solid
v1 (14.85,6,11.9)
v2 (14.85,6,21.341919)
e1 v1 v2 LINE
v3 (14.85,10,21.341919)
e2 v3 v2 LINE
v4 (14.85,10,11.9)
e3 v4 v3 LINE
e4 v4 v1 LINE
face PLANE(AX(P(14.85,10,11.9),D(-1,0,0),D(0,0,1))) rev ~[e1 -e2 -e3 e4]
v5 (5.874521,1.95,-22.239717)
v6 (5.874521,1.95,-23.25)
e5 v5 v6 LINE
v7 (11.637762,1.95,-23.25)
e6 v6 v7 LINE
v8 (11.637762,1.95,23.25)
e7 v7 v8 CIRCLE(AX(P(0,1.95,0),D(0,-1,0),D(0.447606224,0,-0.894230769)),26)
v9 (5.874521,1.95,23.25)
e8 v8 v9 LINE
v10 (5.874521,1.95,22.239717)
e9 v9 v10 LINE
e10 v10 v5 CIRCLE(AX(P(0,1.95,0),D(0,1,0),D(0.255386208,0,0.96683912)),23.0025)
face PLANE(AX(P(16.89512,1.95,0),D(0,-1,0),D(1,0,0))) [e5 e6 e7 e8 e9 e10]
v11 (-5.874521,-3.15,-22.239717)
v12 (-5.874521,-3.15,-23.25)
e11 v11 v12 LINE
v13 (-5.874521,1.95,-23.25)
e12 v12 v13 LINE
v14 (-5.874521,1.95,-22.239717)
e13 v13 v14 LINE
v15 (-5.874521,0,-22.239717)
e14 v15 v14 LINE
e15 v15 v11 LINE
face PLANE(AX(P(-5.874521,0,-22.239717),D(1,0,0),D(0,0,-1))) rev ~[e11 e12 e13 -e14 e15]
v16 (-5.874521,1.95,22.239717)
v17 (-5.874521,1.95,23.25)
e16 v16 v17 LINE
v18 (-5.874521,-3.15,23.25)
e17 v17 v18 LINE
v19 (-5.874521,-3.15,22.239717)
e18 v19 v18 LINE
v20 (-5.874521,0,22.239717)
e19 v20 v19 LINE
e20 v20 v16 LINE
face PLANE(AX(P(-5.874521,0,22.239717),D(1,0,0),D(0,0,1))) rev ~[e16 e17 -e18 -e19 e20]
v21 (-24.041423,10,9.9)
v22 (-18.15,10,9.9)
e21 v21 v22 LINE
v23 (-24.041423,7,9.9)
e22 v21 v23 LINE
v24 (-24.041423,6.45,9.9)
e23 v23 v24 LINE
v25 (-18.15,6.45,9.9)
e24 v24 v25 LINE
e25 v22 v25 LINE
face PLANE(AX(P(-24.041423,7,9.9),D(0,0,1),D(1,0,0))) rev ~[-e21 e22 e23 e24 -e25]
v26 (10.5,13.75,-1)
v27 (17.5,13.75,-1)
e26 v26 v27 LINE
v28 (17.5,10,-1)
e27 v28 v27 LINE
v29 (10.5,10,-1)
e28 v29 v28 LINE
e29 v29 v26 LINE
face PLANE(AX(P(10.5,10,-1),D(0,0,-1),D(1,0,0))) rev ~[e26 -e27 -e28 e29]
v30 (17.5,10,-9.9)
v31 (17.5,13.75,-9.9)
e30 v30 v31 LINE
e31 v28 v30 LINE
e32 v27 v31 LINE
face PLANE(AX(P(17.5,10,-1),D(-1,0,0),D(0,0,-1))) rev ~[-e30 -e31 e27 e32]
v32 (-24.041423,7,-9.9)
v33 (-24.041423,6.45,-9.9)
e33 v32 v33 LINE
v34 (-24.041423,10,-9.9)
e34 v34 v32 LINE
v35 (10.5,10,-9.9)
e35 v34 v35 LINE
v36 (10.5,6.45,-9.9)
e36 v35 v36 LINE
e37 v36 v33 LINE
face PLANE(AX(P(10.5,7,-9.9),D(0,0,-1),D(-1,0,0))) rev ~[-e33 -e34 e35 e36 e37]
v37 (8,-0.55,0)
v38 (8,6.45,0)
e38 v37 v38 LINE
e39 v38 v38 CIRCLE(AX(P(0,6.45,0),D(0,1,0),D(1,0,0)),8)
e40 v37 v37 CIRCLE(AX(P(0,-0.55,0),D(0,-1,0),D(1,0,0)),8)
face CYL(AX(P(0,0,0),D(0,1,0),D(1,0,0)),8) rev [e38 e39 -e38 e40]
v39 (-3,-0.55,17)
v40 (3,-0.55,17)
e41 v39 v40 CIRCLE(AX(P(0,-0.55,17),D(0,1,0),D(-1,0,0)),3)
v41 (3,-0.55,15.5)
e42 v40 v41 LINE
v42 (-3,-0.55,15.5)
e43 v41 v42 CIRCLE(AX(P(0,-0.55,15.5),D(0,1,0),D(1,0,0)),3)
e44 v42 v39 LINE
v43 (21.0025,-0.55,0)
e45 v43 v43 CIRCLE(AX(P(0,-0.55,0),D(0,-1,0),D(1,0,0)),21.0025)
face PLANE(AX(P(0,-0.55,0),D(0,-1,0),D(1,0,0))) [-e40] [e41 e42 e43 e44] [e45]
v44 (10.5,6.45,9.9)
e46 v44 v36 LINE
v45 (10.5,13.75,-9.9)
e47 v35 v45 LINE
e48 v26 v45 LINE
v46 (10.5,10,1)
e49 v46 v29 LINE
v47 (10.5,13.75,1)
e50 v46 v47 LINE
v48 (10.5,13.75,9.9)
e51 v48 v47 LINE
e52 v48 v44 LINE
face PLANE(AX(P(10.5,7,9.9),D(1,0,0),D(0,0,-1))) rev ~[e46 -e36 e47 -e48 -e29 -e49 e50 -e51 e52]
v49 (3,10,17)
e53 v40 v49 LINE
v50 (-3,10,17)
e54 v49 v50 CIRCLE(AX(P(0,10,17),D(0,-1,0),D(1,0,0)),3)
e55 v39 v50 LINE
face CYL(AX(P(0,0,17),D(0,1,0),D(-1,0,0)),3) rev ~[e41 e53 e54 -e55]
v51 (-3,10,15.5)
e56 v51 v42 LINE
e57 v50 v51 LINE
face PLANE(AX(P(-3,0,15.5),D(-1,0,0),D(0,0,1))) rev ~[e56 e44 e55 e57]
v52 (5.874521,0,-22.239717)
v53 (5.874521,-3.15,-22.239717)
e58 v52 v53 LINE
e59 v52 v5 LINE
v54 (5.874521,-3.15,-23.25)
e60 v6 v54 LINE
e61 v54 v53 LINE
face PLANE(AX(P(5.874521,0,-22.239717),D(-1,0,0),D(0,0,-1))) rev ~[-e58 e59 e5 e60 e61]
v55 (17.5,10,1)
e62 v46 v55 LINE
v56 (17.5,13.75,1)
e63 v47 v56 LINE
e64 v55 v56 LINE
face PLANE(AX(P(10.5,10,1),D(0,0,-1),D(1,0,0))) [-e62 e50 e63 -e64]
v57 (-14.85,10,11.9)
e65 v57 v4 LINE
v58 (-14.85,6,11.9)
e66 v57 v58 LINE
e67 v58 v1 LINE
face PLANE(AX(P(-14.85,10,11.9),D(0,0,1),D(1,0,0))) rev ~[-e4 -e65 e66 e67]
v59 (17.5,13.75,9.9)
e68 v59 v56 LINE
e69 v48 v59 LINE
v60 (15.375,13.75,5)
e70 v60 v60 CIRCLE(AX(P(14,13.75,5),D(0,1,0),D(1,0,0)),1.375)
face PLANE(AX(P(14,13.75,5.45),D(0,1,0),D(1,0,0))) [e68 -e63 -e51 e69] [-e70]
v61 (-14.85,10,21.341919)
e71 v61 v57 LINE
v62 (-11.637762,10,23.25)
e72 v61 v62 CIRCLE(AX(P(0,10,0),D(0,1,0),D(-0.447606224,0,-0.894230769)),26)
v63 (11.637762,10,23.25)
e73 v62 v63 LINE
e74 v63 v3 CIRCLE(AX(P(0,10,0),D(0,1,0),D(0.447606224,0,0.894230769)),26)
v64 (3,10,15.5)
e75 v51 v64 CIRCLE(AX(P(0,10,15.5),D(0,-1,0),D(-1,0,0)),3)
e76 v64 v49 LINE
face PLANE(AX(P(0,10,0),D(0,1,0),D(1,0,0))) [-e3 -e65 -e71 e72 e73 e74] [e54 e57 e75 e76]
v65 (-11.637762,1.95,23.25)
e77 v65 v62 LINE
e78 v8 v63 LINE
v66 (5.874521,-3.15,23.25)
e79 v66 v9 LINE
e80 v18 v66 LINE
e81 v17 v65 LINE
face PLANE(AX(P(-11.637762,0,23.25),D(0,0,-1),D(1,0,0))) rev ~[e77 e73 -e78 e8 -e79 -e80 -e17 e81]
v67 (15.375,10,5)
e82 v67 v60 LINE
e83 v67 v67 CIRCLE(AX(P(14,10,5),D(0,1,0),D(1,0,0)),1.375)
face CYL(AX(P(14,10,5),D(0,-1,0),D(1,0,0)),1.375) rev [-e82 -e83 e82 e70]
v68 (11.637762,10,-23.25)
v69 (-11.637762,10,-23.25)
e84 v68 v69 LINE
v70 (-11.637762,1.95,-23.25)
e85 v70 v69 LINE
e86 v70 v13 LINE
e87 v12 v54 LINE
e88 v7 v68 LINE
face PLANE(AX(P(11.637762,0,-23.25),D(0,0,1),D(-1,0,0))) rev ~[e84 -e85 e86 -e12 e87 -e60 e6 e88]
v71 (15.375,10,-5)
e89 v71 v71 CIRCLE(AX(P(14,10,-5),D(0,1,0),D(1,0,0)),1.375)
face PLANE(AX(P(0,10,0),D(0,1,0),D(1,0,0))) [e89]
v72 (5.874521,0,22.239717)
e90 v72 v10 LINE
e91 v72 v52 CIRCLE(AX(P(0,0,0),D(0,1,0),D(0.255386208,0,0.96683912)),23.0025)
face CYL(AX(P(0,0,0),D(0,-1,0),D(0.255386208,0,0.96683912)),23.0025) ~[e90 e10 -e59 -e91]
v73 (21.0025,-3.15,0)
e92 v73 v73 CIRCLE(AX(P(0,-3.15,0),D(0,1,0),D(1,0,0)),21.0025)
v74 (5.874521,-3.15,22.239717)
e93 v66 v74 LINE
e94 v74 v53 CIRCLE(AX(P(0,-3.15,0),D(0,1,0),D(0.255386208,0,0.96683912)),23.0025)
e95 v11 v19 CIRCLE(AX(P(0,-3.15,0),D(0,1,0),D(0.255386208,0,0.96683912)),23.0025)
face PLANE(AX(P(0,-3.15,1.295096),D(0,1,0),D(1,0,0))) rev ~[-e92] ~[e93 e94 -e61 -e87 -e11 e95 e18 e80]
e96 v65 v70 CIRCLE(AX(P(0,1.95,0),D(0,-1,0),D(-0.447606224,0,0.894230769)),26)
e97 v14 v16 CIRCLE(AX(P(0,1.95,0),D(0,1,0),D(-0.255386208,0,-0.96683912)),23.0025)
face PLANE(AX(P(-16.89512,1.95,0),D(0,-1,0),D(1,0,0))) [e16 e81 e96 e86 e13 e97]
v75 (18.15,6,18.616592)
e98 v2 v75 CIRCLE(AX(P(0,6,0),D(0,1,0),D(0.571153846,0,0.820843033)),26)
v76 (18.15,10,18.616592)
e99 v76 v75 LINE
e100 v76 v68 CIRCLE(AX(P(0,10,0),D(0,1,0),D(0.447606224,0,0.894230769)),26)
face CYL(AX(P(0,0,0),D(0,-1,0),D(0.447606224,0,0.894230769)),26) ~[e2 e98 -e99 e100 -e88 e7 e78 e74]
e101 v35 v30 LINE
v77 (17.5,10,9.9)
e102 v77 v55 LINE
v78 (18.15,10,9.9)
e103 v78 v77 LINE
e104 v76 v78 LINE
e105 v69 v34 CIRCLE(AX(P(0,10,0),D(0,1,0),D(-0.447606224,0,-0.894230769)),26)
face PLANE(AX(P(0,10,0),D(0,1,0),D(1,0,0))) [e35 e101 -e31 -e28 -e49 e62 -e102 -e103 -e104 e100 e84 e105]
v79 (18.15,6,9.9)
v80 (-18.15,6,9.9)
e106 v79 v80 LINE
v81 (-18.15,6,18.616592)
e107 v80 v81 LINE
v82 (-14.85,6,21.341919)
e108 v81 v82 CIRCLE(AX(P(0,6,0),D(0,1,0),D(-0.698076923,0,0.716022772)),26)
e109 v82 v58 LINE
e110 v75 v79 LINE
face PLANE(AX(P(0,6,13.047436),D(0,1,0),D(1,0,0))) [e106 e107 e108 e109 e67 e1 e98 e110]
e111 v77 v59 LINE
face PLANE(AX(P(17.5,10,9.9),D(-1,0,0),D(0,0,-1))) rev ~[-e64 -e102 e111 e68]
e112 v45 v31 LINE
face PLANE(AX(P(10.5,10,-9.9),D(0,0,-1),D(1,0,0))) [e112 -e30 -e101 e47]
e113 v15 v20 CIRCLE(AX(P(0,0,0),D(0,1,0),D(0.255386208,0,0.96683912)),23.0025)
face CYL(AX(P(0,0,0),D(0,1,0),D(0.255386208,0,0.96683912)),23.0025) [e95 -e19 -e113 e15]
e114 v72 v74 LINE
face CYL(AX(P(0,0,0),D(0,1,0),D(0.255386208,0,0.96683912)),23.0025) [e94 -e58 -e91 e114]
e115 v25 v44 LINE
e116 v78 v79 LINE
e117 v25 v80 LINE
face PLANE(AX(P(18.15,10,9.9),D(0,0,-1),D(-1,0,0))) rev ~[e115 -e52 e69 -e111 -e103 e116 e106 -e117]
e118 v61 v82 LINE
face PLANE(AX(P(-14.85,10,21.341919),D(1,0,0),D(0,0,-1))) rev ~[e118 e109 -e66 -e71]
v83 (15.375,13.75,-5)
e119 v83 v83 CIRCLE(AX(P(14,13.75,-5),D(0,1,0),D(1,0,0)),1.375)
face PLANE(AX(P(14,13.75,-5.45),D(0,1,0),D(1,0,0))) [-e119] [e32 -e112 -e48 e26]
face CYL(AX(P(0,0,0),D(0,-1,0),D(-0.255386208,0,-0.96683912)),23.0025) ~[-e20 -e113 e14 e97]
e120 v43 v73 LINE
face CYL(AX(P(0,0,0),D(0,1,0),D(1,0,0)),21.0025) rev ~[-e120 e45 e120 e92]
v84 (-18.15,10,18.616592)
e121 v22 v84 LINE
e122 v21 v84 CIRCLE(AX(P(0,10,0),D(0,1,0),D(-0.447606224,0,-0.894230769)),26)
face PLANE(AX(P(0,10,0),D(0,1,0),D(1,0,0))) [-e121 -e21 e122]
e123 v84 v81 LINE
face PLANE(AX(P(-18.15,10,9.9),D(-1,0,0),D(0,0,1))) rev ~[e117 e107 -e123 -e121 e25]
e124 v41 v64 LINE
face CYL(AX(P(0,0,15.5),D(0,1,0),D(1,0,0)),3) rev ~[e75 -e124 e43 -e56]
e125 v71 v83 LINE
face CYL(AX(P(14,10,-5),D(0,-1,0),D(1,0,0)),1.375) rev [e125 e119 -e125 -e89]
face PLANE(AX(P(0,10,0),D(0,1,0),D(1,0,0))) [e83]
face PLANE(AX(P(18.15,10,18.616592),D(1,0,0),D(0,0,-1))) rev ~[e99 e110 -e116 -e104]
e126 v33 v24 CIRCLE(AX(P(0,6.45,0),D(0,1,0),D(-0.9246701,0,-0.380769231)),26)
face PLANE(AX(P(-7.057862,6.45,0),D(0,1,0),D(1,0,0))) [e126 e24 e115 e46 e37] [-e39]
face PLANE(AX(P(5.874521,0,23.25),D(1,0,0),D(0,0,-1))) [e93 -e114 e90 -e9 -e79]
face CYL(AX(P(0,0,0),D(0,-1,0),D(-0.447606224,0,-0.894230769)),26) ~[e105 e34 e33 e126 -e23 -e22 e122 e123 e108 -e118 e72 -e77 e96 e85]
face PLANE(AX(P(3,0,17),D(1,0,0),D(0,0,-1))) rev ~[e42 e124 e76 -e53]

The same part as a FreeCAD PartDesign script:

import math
import FreeCAD as App
import Part
import Sketcher

V = App.Vector

doc = App.newDocument("Part")
params = doc.addObject("Spreadsheet::Sheet", "Params")
for row, (alias, value) in enumerate([
    ("sketch1_diameter", "16 mm"),
    ("sketch1_radius", "26 mm"),
    ("sketch1_radius2", "3 mm"),
    ("sketch1_height", "1.5 mm"),
    ("pad1_length", "10 mm"),
    ("pad2_length", "3.15 mm"),
    ("sketch3_radius", "26 mm"),
    ("sketch3_width", "29.7 mm"),
    ("sketch3_width2", "36.3 mm"),
    ("pocket1_length", "4 mm"),
    ("sketch4_width", "36.5 mm"),
    ("sketch4_height", "19.8 mm"),
    ("pocket2_length", "3 mm"),
    ("sketch5_diameter", "2.75 mm"),
    ("sketch5_width", "7 mm"),
    ("sketch5_height", "8.9 mm"),
    ("pad3_length", "4.3 mm"),
    ("pad4_length", "3.15 mm"),
    ("sketch7_radius", "26 mm"),
    ("pocket3_length", "1.95 mm"),
    ("sketch8_diameter", "16 mm"),
    ("sketch8_radius", "3 mm"),
    ("sketch8_height", "1.5 mm"),
    ("pad5_length", "0.55 mm"),
    ("sketch9_diameter", "16 mm"),
    ("sketch9_radius", "26 mm"),
    ("sketch9_height", "19.8 mm"),
    ("pocket4_length", "0.55 mm"),
    ("sketch10_diameter", "2.75 mm"),
    ("sketch10_width", "7 mm"),
    ("sketch10_height", "8.9 mm"),
    ("pocket5_length", "0.55 mm"),
], start=1):
    params.set(f"A{row}", alias)
    params.set(f"B{row}", "=" + value)
    params.setAlias(f"B{row}", alias)

body = doc.addObject("PartDesign::Body", "Body")

sketch1 = body.newObject("Sketcher::SketchObject", "Sketch")
sketch1.AttachmentSupport = (doc.getObject("XZ_Plane"), [""])
sketch1.MapMode = "FlatFace"
sketch1.addGeometry([
    Part.ArcOfCircle(Part.Circle(V(0, 0, 0), V(0, 0, 1), 26), math.radians(116.590205), math.radians(243.409795)),
    Part.LineSegment(V(-11.637762, 23.25, 0), V(11.637762, 23.25, 0)),
    Part.ArcOfCircle(Part.Circle(V(0, 0, 0), V(0, 0, 1), 26), math.radians(-63.409795), math.radians(63.409795)),
    Part.LineSegment(V(11.637762, -23.25, 0), V(-11.637762, -23.25, 0)),
    Part.LineSegment(V(-3, 17, 0), V(-3, 15.5, 0)),
    Part.ArcOfCircle(Part.Circle(V(0, 15.5, 0), V(0, 0, 1), 3), math.radians(180), math.radians(360)),
    Part.LineSegment(V(3, 15.5, 0), V(3, 17, 0)),
    Part.ArcOfCircle(Part.Circle(V(0, 17, 0), V(0, 0, 1), 3), math.radians(0), math.radians(180)),
    Part.Circle(V(0, 0, 0), V(0, 0, 1), 8),
], False)
sketch1.addConstraint([
    Sketcher.Constraint("Coincident", 0, 1, 1, 1),
    Sketcher.Constraint("Coincident", 1, 2, 2, 2),
    Sketcher.Constraint("Coincident", 2, 1, 3, 1),
    Sketcher.Constraint("Coincident", 3, 2, 0, 2),
    Sketcher.Constraint("Tangent", 4, 2, 5, 1),
    Sketcher.Constraint("Tangent", 5, 2, 6, 1),
    Sketcher.Constraint("Tangent", 6, 2, 7, 1),
    Sketcher.Constraint("Tangent", 7, 2, 4, 1),
    Sketcher.Constraint("Horizontal", 1),
    Sketcher.Constraint("Horizontal", 3),
    Sketcher.Constraint("Vertical", 4),
    Sketcher.Constraint("Vertical", 6),
    Sketcher.Constraint("Coincident", 0, 3, -1, 1),
    Sketcher.Constraint("Coincident", 2, 3, -1, 1),
    Sketcher.Constraint("Coincident", 8, 3, -1, 1),
    Sketcher.Constraint("Equal", 0, 2),
    Sketcher.Constraint("PointOnObject", 5, 3, -2),
    Sketcher.Constraint("Vertical", 1, 2, 2, 1),
    Sketcher.Constraint("Diameter", 8, 16.0),
    Sketcher.Constraint("Radius", 0, 26.0),
    Sketcher.Constraint("Radius", 5, 3.0),
    Sketcher.Constraint("DistanceY", 4, 2, 4, 1, 1.5),
    Sketcher.Constraint("DistanceY", -1, 1, 7, 3, 17.0),
    Sketcher.Constraint("DistanceY", -1, 1, 0, 1, 23.25),
])
sketch1.setExpression("Constraints[18]", "Params.sketch1_diameter")
sketch1.setExpression("Constraints[19]", "Params.sketch1_radius")
sketch1.setExpression("Constraints[20]", "Params.sketch1_radius2")
sketch1.setExpression("Constraints[21]", "Params.sketch1_height")
pad1 = body.newObject("PartDesign::Pad", "Pad")
pad1.Profile = sketch1
pad1.setExpression("Length", "Params.pad1_length")
pad1.Reversed = True

sketch2 = body.newObject("Sketcher::SketchObject", "Sketch001")
sketch2.AttachmentSupport = (doc.getObject("XZ_Plane"), [""])
sketch2.MapMode = "FlatFace"
sketch2.addGeometry([
    Part.LineSegment(V(-5.874521, 22.239717, 0), V(-5.874521, 23.25, 0)),
    Part.LineSegment(V(-5.874521, 23.25, 0), V(5.874521, 23.25, 0)),
    Part.LineSegment(V(5.874521, 23.25, 0), V(5.874521, 22.239717, 0)),
    Part.ArcOfCircle(Part.Circle(V(0, 0, 0), V(0, 0, 1), 23.0025), math.radians(104.796471), math.radians(435.203529)),
    Part.Circle(V(0, 0, 0), V(0, 0, 1), 21.0025),
], False)
sketch2.addConstraint([
    Sketcher.Constraint("Coincident", 0, 2, 1, 1),
    Sketcher.Constraint("Coincident", 1, 2, 2, 1),
    Sketcher.Constraint("Coincident", 2, 2, 3, 2),
    Sketcher.Constraint("Coincident", 3, 1, 0, 1),
    Sketcher.Constraint("Vertical", 0),
    Sketcher.Constraint("Horizontal", 1),
    Sketcher.Constraint("Vertical", 2),
    Sketcher.Constraint("Coincident", 3, 3, -1, 1),
    Sketcher.Constraint("Coincident", 4, 3, -1, 1),
    Sketcher.Constraint("Horizontal", 2, 2, 3, 1),
    Sketcher.Constraint("Diameter", 4, 42.005),
    Sketcher.Constraint("Radius", 3, 23.0025),
    Sketcher.Constraint("DistanceY", -1, 1, 0, 2, 23.25),
    Sketcher.Constraint("DistanceX", 1, 1, 1, 2, 11.749043),
])
pad2 = body.newObject("PartDesign::Pad", "Pad001")
pad2.Profile = sketch2
pad2.setExpression("Length", "Params.pad2_length")

sketch3 = body.newObject("Sketcher::SketchObject", "Sketch002")
sketch3.AttachmentSupport = (doc.getObject("XZ_Plane"), [""])
sketch3.MapMode = "FlatFace"
sketch3.AttachmentOffset = App.Placement(V(0, 0, -10), App.Rotation())
sketch3.addGeometry([
    Part.LineSegment(V(-18.15, 9.9, 0), V(-18.15, 18.616592, 0)),
    Part.ArcOfCircle(Part.Circle(V(0, 0, 0), V(0, 0, 1), 26), math.radians(124.830726), math.radians(134.272918)),
    Part.LineSegment(V(-14.85, 21.341919, 0), V(-14.85, 11.9, 0)),
    Part.LineSegment(V(-14.85, 11.9, 0), V(14.85, 11.9, 0)),
    Part.LineSegment(V(14.85, 11.9, 0), V(14.85, 21.341919, 0)),
    Part.ArcOfCircle(Part.Circle(V(0, 0, 0), V(0, 0, 1), 26), math.radians(45.727082), math.radians(55.169274)),
    Part.LineSegment(V(18.15, 18.616592, 0), V(18.15, 9.9, 0)),
    Part.LineSegment(V(18.15, 9.9, 0), V(-18.15, 9.9, 0)),
], False)
sketch3.addConstraint([
    Sketcher.Constraint("Coincident", 0, 2, 1, 2),
    Sketcher.Constraint("Coincident", 1, 1, 2, 1),
    Sketcher.Constraint("Coincident", 2, 2, 3, 1),
    Sketcher.Constraint("Coincident", 3, 2, 4, 1),
    Sketcher.Constraint("Coincident", 4, 2, 5, 2),
    Sketcher.Constraint("Coincident", 5, 1, 6, 1),
    Sketcher.Constraint("Coincident", 6, 2, 7, 1),
    Sketcher.Constraint("Coincident", 7, 2, 0, 1),
    Sketcher.Constraint("Vertical", 0),
    Sketcher.Constraint("Vertical", 2),
    Sketcher.Constraint("Horizontal", 3),
    Sketcher.Constraint("Vertical", 4),
    Sketcher.Constraint("Vertical", 6),
    Sketcher.Constraint("Horizontal", 7),
    Sketcher.Constraint("Coincident", 1, 3, -1, 1),
    Sketcher.Constraint("Coincident", 5, 3, -1, 1),
    Sketcher.Constraint("Equal", 1, 5),
    Sketcher.Constraint("Horizontal", 1, 1, 4, 2),
    Sketcher.Constraint("Horizontal", 0, 2, 5, 1),
    Sketcher.Constraint("Radius", 1, 26.0),
    Sketcher.Constraint("DistanceX", 3, 1, 3, 2, 29.7),
    Sketcher.Constraint("DistanceX", 7, 2, 7, 1, 36.3),
    Sketcher.Constraint("DistanceY", 6, 2, 3, 2, 2.0),
    Sketcher.Constraint("DistanceY", -1, 1, 2, 2, 11.9),
])
sketch3.setExpression("Constraints[19]", "Params.sketch3_radius")
sketch3.setExpression("Constraints[20]", "Params.sketch3_width")
sketch3.setExpression("Constraints[21]", "Params.sketch3_width2")
pocket1 = body.newObject("PartDesign::Pocket", "Pocket")
pocket1.Profile = sketch3
pocket1.setExpression("Length", "Params.pocket1_length")
pocket1.Reversed = True

sketch4 = body.newObject("Sketcher::SketchObject", "Sketch003")
sketch4.AttachmentSupport = (doc.getObject("XZ_Plane"), [""])
sketch4.MapMode = "FlatFace"
sketch4.AttachmentOffset = App.Placement(V(0, 0, -10), App.Rotation())
sketch4.addGeometry([
    Part.LineSegment(V(-26, -9.9, 0), V(-26, 9.9, 0)),
    Part.LineSegment(V(-26, 9.9, 0), V(10.5, 9.9, 0)),
    Part.LineSegment(V(10.5, 9.9, 0), V(10.5, -9.9, 0)),
    Part.LineSegment(V(10.5, -9.9, 0), V(-26, -9.9, 0)),
], False)
sketch4.addConstraint([
    Sketcher.Constraint("Coincident", 0, 2, 1, 1),
    Sketcher.Constraint("Coincident", 1, 2, 2, 1),
    Sketcher.Constraint("Coincident", 2, 2, 3, 1),
    Sketcher.Constraint("Coincident", 3, 2, 0, 1),
    Sketcher.Constraint("Vertical", 0),
    Sketcher.Constraint("Horizontal", 1),
    Sketcher.Constraint("Vertical", 2),
    Sketcher.Constraint("Horizontal", 3),
    Sketcher.Constraint("DistanceX", 1, 1, 1, 2, 36.5),
    Sketcher.Constraint("DistanceY", 0, 1, 0, 2, 19.8),
    Sketcher.Constraint("DistanceX", 0, 2, -1, 1, 26.0),
    Sketcher.Constraint("DistanceY", -1, 1, 0, 2, 9.9),
])
sketch4.setExpression("Constraints[8]", "Params.sketch4_width")
sketch4.setExpression("Constraints[9]", "Params.sketch4_height")
pocket2 = body.newObject("PartDesign::Pocket", "Pocket001")
pocket2.Profile = sketch4
pocket2.setExpression("Length", "Params.pocket2_length")
pocket2.Reversed = True

sketch5 = body.newObject("Sketcher::SketchObject", "Sketch004")
sketch5.AttachmentSupport = (doc.getObject("XZ_Plane"), [""])
sketch5.MapMode = "FlatFace"
sketch5.AttachmentOffset = App.Placement(V(0, 0, -10), App.Rotation())
sketch5.addGeometry([
    Part.LineSegment(V(10.5, -9.9, 0), V(10.5, -1, 0)),
    Part.LineSegment(V(10.5, -1, 0), V(17.5, -1, 0)),
    Part.LineSegment(V(17.5, -1, 0), V(17.5, -9.9, 0)),
    Part.LineSegment(V(17.5, -9.9, 0), V(10.5, -9.9, 0)),
    Part.Circle(V(14, -5, 0), V(0, 0, 1), 1.375),
    Part.LineSegment(V(10.5, 1, 0), V(10.5, 9.9, 0)),
    Part.LineSegment(V(10.5, 9.9, 0), V(17.5, 9.9, 0)),
    Part.LineSegment(V(17.5, 9.9, 0), V(17.5, 1, 0)),
    Part.LineSegment(V(17.5, 1, 0), V(10.5, 1, 0)),
    Part.Circle(V(14, 5, 0), V(0, 0, 1), 1.375),
], False)
sketch5.addConstraint([
    Sketcher.Constraint("Coincident", 0, 2, 1, 1),
    Sketcher.Constraint("Coincident", 1, 2, 2, 1),
    Sketcher.Constraint("Coincident", 2, 2, 3, 1),
    Sketcher.Constraint("Coincident", 3, 2, 0, 1),
    Sketcher.Constraint("Coincident", 5, 2, 6, 1),
    Sketcher.Constraint("Coincident", 6, 2, 7, 1),
    Sketcher.Constraint("Coincident", 7, 2, 8, 1),
    Sketcher.Constraint("Coincident", 8, 2, 5, 1),
    Sketcher.Constraint("Vertical", 0),
    Sketcher.Constraint("Horizontal", 1),
    Sketcher.Constraint("Vertical", 2),
    Sketcher.Constraint("Horizontal", 3),
    Sketcher.Constraint("Vertical", 5),
    Sketcher.Constraint("Horizontal", 6),
    Sketcher.Constraint("Vertical", 7),
    Sketcher.Constraint("Horizontal", 8),
    Sketcher.Constraint("Equal", 4, 9),
    Sketcher.Constraint("Symmetric", 4, 3, 9, 3, -1),
    Sketcher.Constraint("Symmetric", 3, 2, 5, 2, -1),
    Sketcher.Constraint("Symmetric", 1, 2, 7, 2, -1),
    Sketcher.Constraint("Diameter", 4, 2.75),
    Sketcher.Constraint("DistanceX", 1, 1, 1, 2, 7.0),
    Sketcher.Constraint("DistanceY", 0, 1, 0, 2, 8.9),
    Sketcher.Constraint("DistanceX", -1, 1, 4, 3, 14.0),
    Sketcher.Constraint("DistanceY", 4, 3, -1, 1, 5.0),
    Sketcher.Constraint("DistanceY", 0, 2, -1, 1, 1.0),
    Sketcher.Constraint("DistanceX", -1, 1, 0, 2, 10.5),
])
sketch5.setExpression("Constraints[20]", "Params.sketch5_diameter")
sketch5.setExpression("Constraints[21]", "Params.sketch5_width")
sketch5.setExpression("Constraints[22]", "Params.sketch5_height")
pad3 = body.newObject("PartDesign::Pad", "Pad002")
pad3.Profile = sketch5
pad3.setExpression("Length", "Params.pad3_length")
pad3.Reversed = True

sketch6 = body.newObject("Sketcher::SketchObject", "Sketch005")
sketch6.AttachmentSupport = (doc.getObject("XZ_Plane"), [""])
sketch6.MapMode = "FlatFace"
sketch6.addGeometry([
    Part.LineSegment(V(-5.874521, -23.25, 0), V(5.874521, -23.25, 0)),
    Part.LineSegment(V(5.874521, -23.25, 0), V(5.874521, -22.239717, 0)),
    Part.ArcOfCircle(Part.Circle(V(0, 0, 0), V(0, 0, 1), 23.0025), math.radians(-104.796471), math.radians(-75.203529)),
    Part.LineSegment(V(-5.874521, -22.239717, 0), V(-5.874521, -23.25, 0)),
], False)
sketch6.addConstraint([
    Sketcher.Constraint("Coincident", 0, 2, 1, 1),
    Sketcher.Constraint("Coincident", 1, 2, 2, 2),
    Sketcher.Constraint("Coincident", 2, 1, 3, 1),
    Sketcher.Constraint("Coincident", 3, 2, 0, 1),
    Sketcher.Constraint("Horizontal", 0),
    Sketcher.Constraint("Vertical", 1),
    Sketcher.Constraint("Vertical", 3),
    Sketcher.Constraint("Coincident", 2, 3, -1, 1),
    Sketcher.Constraint("Horizontal", 1, 2, 2, 1),
    Sketcher.Constraint("Radius", 2, 23.0025),
    Sketcher.Constraint("DistanceY", 0, 2, -1, 1, 23.25),
    Sketcher.Constraint("DistanceX", 0, 1, 0, 2, 11.749043),
])
pad4 = body.newObject("PartDesign::Pad", "Pad003")
pad4.Profile = sketch6
pad4.setExpression("Length", "Params.pad4_length")

sketch7 = body.newObject("Sketcher::SketchObject", "Sketch006")
sketch7.AttachmentSupport = (doc.getObject("XZ_Plane"), [""])
sketch7.MapMode = "FlatFace"
sketch7.addGeometry([
    Part.LineSegment(V(-11.637762, -23.25, 0), V(-5.874521, -23.25, 0)),
    Part.LineSegment(V(-5.874521, -23.25, 0), V(-5.874521, -22.239717, 0)),
    Part.ArcOfCircle(Part.Circle(V(0, 0, 0), V(0, 0, 1), 23.0025), math.radians(104.796471), math.radians(255.203529)),
    Part.LineSegment(V(-5.874521, 22.239717, 0), V(-5.874521, 23.25, 0)),
    Part.LineSegment(V(-5.874521, 23.25, 0), V(-11.637762, 23.25, 0)),
    Part.ArcOfCircle(Part.Circle(V(0, 0, 0), V(0, 0, 1), 26), math.radians(116.590205), math.radians(243.409795)),
    Part.LineSegment(V(5.874521, 23.25, 0), V(5.874521, 22.239717, 0)),
    Part.ArcOfCircle(Part.Circle(V(0, 0, 0), V(0, 0, 1), 23.0025), math.radians(-75.203529), math.radians(75.203529)),
    Part.LineSegment(V(5.874521, -22.239717, 0), V(5.874521, -23.25, 0)),
    Part.LineSegment(V(5.874521, -23.25, 0), V(11.637762, -23.25, 0)),
    Part.ArcOfCircle(Part.Circle(V(0, 0, 0), V(0, 0, 1), 26), math.radians(-63.409795), math.radians(63.409795)),
    Part.LineSegment(V(11.637762, 23.25, 0), V(5.874521, 23.25, 0)),
], False)
sketch7.addConstraint([
    Sketcher.Constraint("Coincident", 0, 2, 1, 1),
    Sketcher.Constraint("Coincident", 1, 2, 2, 2),
    Sketcher.Constraint("Coincident", 2, 1, 3, 1),
    Sketcher.Constraint("Coincident", 3, 2, 4, 1),
    Sketcher.Constraint("Coincident", 4, 2, 5, 1),
    Sketcher.Constraint("Coincident", 5, 2, 0, 1),
    Sketcher.Constraint("Coincident", 6, 2, 7, 2),
    Sketcher.Constraint("Coincident", 7, 1, 8, 1),
    Sketcher.Constraint("Coincident", 8, 2, 9, 1),
    Sketcher.Constraint("Coincident", 9, 2, 10, 1),
    Sketcher.Constraint("Coincident", 10, 2, 11, 1),
    Sketcher.Constraint("Coincident", 11, 2, 6, 1),
    Sketcher.Constraint("Horizontal", 0),
    Sketcher.Constraint("Vertical", 1),
    Sketcher.Constraint("Vertical", 3),
    Sketcher.Constraint("Horizontal", 4),
    Sketcher.Constraint("Vertical", 6),
    Sketcher.Constraint("Vertical", 8),
    Sketcher.Constraint("Horizontal", 9),
    Sketcher.Constraint("Horizontal", 11),
    Sketcher.Constraint("Coincident", 2, 3, -1, 1),
    Sketcher.Constraint("Coincident", 5, 3, -1, 1),
    Sketcher.Constraint("Coincident", 7, 3, -1, 1),
    Sketcher.Constraint("Coincident", 10, 3, -1, 1),
    Sketcher.Constraint("Equal", 2, 7),
    Sketcher.Constraint("Equal", 5, 10),
    Sketcher.Constraint("Symmetric", 3, 2, 8, 2, -1, 1),
    Sketcher.Constraint("Symmetric", 0, 2, 11, 2, -1, 1),
    Sketcher.Constraint("Symmetric", 0, 2, 8, 2, -2),
    Sketcher.Constraint("Radius", 5, 26.0),
    Sketcher.Constraint("Radius", 2, 23.0025),
    Sketcher.Constraint("DistanceY", 0, 2, -1, 1, 23.25),
    Sketcher.Constraint("DistanceX", 0, 1, 0, 2, 5.763241),
])
sketch7.setExpression("Constraints[29]", "Params.sketch7_radius")
pocket3 = body.newObject("PartDesign::Pocket", "Pocket002")
pocket3.Profile = sketch7
pocket3.setExpression("Length", "Params.pocket3_length")

sketch8 = body.newObject("Sketcher::SketchObject", "Sketch007")
sketch8.AttachmentSupport = (doc.getObject("XZ_Plane"), [""])
sketch8.MapMode = "FlatFace"
sketch8.addGeometry([
    Part.Circle(V(0, 0, 0), V(0, 0, 1), 21.0025),
    Part.Circle(V(0, 0, 0), V(0, 0, 1), 8),
    Part.ArcOfCircle(Part.Circle(V(0, 15.5, 0), V(0, 0, 1), 3), math.radians(180), math.radians(360)),
    Part.LineSegment(V(-3, 15.5, 0), V(-3, 17, 0)),
    Part.ArcOfCircle(Part.Circle(V(0, 17, 0), V(0, 0, 1), 3), math.radians(0), math.radians(180)),
    Part.LineSegment(V(3, 17, 0), V(3, 15.5, 0)),
], False)
sketch8.addConstraint([
    Sketcher.Constraint("Tangent", 2, 1, 3, 1),
    Sketcher.Constraint("Tangent", 3, 2, 4, 2),
    Sketcher.Constraint("Tangent", 4, 1, 5, 1),
    Sketcher.Constraint("Tangent", 5, 2, 2, 2),
    Sketcher.Constraint("Vertical", 3),
    Sketcher.Constraint("Vertical", 5),
    Sketcher.Constraint("Coincident", 0, 3, -1, 1),
    Sketcher.Constraint("Coincident", 1, 3, -1, 1),
    Sketcher.Constraint("PointOnObject", 2, 3, -2),
    Sketcher.Constraint("Diameter", 1, 16.0),
    Sketcher.Constraint("Radius", 2, 3.0),
    Sketcher.Constraint("Diameter", 0, 42.005),
    Sketcher.Constraint("DistanceY", 3, 1, 3, 2, 1.5),
    Sketcher.Constraint("DistanceY", -1, 1, 4, 3, 17.0),
])
sketch8.setExpression("Constraints[9]", "Params.sketch8_diameter")
sketch8.setExpression("Constraints[10]", "Params.sketch8_radius")
sketch8.setExpression("Constraints[12]", "Params.sketch8_height")
pad5 = body.newObject("PartDesign::Pad", "Pad004")
pad5.Profile = sketch8
pad5.setExpression("Length", "Params.pad5_length")

sketch9 = body.newObject("Sketcher::SketchObject", "Sketch008")
sketch9.AttachmentSupport = (doc.getObject("XZ_Plane"), [""])
sketch9.MapMode = "FlatFace"
sketch9.AttachmentOffset = App.Placement(V(0, 0, -7), App.Rotation())
sketch9.addGeometry([
    Part.LineSegment(V(-24.041423, 9.9, 0), V(10.5, 9.9, 0)),
    Part.LineSegment(V(10.5, 9.9, 0), V(10.5, -9.9, 0)),
    Part.LineSegment(V(10.5, -9.9, 0), V(-24.041423, -9.9, 0)),
    Part.ArcOfCircle(Part.Circle(V(0, 0, 0), V(0, 0, 1), 26), math.radians(157.618661), math.radians(202.381339)),
    Part.Circle(V(0, 0, 0), V(0, 0, 1), 8),
], False)
sketch9.addConstraint([
    Sketcher.Constraint("Coincident", 0, 2, 1, 1),
    Sketcher.Constraint("Coincident", 1, 2, 2, 1),
    Sketcher.Constraint("Coincident", 2, 2, 3, 2),
    Sketcher.Constraint("Coincident", 3, 1, 0, 1),
    Sketcher.Constraint("Horizontal", 0),
    Sketcher.Constraint("Vertical", 1),
    Sketcher.Constraint("Horizontal", 2),
    Sketcher.Constraint("Coincident", 3, 3, -1, 1),
    Sketcher.Constraint("Coincident", 4, 3, -1, 1),
    Sketcher.Constraint("Vertical", 2, 2, 3, 1),
    Sketcher.Constraint("Diameter", 4, 16.0),
    Sketcher.Constraint("Radius", 3, 26.0),
    Sketcher.Constraint("DistanceY", 1, 2, 1, 1, 19.8),
    Sketcher.Constraint("DistanceX", -1, 1, 0, 2, 10.5),
])
sketch9.setExpression("Constraints[10]", "Params.sketch9_diameter")
sketch9.setExpression("Constraints[11]", "Params.sketch9_radius")
sketch9.setExpression("Constraints[12]", "Params.sketch9_height")
pocket4 = body.newObject("PartDesign::Pocket", "Pocket003")
pocket4.Profile = sketch9
pocket4.setExpression("Length", "Params.pocket4_length")
pocket4.Reversed = True

sketch10 = body.newObject("Sketcher::SketchObject", "Sketch009")
sketch10.AttachmentSupport = (doc.getObject("XZ_Plane"), [""])
sketch10.MapMode = "FlatFace"
sketch10.AttachmentOffset = App.Placement(V(0, 0, -14.3), App.Rotation())
sketch10.addGeometry([
    Part.LineSegment(V(10.5, 1, 0), V(10.5, 9.9, 0)),
    Part.LineSegment(V(10.5, 9.9, 0), V(17.5, 9.9, 0)),
    Part.LineSegment(V(17.5, 9.9, 0), V(17.5, 1, 0)),
    Part.LineSegment(V(17.5, 1, 0), V(10.5, 1, 0)),
    Part.Circle(V(14, 5, 0), V(0, 0, 1), 1.375),
    Part.LineSegment(V(10.5, -9.9, 0), V(10.5, -1, 0)),
    Part.LineSegment(V(10.5, -1, 0), V(17.5, -1, 0)),
    Part.LineSegment(V(17.5, -1, 0), V(17.5, -9.9, 0)),
    Part.LineSegment(V(17.5, -9.9, 0), V(10.5, -9.9, 0)),
    Part.Circle(V(14, -5, 0), V(0, 0, 1), 1.375),
], False)
sketch10.addConstraint([
    Sketcher.Constraint("Coincident", 0, 2, 1, 1),
    Sketcher.Constraint("Coincident", 1, 2, 2, 1),
    Sketcher.Constraint("Coincident", 2, 2, 3, 1),
    Sketcher.Constraint("Coincident", 3, 2, 0, 1),
    Sketcher.Constraint("Coincident", 5, 2, 6, 1),
    Sketcher.Constraint("Coincident", 6, 2, 7, 1),
    Sketcher.Constraint("Coincident", 7, 2, 8, 1),
    Sketcher.Constraint("Coincident", 8, 2, 5, 1),
    Sketcher.Constraint("Vertical", 0),
    Sketcher.Constraint("Horizontal", 1),
    Sketcher.Constraint("Vertical", 2),
    Sketcher.Constraint("Horizontal", 3),
    Sketcher.Constraint("Vertical", 5),
    Sketcher.Constraint("Horizontal", 6),
    Sketcher.Constraint("Vertical", 7),
    Sketcher.Constraint("Horizontal", 8),
    Sketcher.Constraint("Equal", 4, 9),
    Sketcher.Constraint("Symmetric", 4, 3, 9, 3, -1),
    Sketcher.Constraint("Symmetric", 3, 2, 5, 2, -1),
    Sketcher.Constraint("Symmetric", 1, 2, 7, 2, -1),
    Sketcher.Constraint("Diameter", 4, 2.75),
    Sketcher.Constraint("DistanceX", 1, 1, 1, 2, 7.0),
    Sketcher.Constraint("DistanceY", 0, 1, 0, 2, 8.9),
    Sketcher.Constraint("DistanceX", -1, 1, 4, 3, 14.0),
    Sketcher.Constraint("DistanceY", -1, 1, 4, 3, 5.0),
    Sketcher.Constraint("DistanceY", -1, 1, 2, 2, 1.0),
    Sketcher.Constraint("DistanceX", -1, 1, 0, 2, 10.5),
])
sketch10.setExpression("Constraints[20]", "Params.sketch10_diameter")
sketch10.setExpression("Constraints[21]", "Params.sketch10_width")
sketch10.setExpression("Constraints[22]", "Params.sketch10_height")
pocket5 = body.newObject("PartDesign::Pocket", "Pocket004")
pocket5.Profile = sketch10
pocket5.setExpression("Length", "Params.pocket5_length")
pocket5.Reversed = True

doc.recompute()
